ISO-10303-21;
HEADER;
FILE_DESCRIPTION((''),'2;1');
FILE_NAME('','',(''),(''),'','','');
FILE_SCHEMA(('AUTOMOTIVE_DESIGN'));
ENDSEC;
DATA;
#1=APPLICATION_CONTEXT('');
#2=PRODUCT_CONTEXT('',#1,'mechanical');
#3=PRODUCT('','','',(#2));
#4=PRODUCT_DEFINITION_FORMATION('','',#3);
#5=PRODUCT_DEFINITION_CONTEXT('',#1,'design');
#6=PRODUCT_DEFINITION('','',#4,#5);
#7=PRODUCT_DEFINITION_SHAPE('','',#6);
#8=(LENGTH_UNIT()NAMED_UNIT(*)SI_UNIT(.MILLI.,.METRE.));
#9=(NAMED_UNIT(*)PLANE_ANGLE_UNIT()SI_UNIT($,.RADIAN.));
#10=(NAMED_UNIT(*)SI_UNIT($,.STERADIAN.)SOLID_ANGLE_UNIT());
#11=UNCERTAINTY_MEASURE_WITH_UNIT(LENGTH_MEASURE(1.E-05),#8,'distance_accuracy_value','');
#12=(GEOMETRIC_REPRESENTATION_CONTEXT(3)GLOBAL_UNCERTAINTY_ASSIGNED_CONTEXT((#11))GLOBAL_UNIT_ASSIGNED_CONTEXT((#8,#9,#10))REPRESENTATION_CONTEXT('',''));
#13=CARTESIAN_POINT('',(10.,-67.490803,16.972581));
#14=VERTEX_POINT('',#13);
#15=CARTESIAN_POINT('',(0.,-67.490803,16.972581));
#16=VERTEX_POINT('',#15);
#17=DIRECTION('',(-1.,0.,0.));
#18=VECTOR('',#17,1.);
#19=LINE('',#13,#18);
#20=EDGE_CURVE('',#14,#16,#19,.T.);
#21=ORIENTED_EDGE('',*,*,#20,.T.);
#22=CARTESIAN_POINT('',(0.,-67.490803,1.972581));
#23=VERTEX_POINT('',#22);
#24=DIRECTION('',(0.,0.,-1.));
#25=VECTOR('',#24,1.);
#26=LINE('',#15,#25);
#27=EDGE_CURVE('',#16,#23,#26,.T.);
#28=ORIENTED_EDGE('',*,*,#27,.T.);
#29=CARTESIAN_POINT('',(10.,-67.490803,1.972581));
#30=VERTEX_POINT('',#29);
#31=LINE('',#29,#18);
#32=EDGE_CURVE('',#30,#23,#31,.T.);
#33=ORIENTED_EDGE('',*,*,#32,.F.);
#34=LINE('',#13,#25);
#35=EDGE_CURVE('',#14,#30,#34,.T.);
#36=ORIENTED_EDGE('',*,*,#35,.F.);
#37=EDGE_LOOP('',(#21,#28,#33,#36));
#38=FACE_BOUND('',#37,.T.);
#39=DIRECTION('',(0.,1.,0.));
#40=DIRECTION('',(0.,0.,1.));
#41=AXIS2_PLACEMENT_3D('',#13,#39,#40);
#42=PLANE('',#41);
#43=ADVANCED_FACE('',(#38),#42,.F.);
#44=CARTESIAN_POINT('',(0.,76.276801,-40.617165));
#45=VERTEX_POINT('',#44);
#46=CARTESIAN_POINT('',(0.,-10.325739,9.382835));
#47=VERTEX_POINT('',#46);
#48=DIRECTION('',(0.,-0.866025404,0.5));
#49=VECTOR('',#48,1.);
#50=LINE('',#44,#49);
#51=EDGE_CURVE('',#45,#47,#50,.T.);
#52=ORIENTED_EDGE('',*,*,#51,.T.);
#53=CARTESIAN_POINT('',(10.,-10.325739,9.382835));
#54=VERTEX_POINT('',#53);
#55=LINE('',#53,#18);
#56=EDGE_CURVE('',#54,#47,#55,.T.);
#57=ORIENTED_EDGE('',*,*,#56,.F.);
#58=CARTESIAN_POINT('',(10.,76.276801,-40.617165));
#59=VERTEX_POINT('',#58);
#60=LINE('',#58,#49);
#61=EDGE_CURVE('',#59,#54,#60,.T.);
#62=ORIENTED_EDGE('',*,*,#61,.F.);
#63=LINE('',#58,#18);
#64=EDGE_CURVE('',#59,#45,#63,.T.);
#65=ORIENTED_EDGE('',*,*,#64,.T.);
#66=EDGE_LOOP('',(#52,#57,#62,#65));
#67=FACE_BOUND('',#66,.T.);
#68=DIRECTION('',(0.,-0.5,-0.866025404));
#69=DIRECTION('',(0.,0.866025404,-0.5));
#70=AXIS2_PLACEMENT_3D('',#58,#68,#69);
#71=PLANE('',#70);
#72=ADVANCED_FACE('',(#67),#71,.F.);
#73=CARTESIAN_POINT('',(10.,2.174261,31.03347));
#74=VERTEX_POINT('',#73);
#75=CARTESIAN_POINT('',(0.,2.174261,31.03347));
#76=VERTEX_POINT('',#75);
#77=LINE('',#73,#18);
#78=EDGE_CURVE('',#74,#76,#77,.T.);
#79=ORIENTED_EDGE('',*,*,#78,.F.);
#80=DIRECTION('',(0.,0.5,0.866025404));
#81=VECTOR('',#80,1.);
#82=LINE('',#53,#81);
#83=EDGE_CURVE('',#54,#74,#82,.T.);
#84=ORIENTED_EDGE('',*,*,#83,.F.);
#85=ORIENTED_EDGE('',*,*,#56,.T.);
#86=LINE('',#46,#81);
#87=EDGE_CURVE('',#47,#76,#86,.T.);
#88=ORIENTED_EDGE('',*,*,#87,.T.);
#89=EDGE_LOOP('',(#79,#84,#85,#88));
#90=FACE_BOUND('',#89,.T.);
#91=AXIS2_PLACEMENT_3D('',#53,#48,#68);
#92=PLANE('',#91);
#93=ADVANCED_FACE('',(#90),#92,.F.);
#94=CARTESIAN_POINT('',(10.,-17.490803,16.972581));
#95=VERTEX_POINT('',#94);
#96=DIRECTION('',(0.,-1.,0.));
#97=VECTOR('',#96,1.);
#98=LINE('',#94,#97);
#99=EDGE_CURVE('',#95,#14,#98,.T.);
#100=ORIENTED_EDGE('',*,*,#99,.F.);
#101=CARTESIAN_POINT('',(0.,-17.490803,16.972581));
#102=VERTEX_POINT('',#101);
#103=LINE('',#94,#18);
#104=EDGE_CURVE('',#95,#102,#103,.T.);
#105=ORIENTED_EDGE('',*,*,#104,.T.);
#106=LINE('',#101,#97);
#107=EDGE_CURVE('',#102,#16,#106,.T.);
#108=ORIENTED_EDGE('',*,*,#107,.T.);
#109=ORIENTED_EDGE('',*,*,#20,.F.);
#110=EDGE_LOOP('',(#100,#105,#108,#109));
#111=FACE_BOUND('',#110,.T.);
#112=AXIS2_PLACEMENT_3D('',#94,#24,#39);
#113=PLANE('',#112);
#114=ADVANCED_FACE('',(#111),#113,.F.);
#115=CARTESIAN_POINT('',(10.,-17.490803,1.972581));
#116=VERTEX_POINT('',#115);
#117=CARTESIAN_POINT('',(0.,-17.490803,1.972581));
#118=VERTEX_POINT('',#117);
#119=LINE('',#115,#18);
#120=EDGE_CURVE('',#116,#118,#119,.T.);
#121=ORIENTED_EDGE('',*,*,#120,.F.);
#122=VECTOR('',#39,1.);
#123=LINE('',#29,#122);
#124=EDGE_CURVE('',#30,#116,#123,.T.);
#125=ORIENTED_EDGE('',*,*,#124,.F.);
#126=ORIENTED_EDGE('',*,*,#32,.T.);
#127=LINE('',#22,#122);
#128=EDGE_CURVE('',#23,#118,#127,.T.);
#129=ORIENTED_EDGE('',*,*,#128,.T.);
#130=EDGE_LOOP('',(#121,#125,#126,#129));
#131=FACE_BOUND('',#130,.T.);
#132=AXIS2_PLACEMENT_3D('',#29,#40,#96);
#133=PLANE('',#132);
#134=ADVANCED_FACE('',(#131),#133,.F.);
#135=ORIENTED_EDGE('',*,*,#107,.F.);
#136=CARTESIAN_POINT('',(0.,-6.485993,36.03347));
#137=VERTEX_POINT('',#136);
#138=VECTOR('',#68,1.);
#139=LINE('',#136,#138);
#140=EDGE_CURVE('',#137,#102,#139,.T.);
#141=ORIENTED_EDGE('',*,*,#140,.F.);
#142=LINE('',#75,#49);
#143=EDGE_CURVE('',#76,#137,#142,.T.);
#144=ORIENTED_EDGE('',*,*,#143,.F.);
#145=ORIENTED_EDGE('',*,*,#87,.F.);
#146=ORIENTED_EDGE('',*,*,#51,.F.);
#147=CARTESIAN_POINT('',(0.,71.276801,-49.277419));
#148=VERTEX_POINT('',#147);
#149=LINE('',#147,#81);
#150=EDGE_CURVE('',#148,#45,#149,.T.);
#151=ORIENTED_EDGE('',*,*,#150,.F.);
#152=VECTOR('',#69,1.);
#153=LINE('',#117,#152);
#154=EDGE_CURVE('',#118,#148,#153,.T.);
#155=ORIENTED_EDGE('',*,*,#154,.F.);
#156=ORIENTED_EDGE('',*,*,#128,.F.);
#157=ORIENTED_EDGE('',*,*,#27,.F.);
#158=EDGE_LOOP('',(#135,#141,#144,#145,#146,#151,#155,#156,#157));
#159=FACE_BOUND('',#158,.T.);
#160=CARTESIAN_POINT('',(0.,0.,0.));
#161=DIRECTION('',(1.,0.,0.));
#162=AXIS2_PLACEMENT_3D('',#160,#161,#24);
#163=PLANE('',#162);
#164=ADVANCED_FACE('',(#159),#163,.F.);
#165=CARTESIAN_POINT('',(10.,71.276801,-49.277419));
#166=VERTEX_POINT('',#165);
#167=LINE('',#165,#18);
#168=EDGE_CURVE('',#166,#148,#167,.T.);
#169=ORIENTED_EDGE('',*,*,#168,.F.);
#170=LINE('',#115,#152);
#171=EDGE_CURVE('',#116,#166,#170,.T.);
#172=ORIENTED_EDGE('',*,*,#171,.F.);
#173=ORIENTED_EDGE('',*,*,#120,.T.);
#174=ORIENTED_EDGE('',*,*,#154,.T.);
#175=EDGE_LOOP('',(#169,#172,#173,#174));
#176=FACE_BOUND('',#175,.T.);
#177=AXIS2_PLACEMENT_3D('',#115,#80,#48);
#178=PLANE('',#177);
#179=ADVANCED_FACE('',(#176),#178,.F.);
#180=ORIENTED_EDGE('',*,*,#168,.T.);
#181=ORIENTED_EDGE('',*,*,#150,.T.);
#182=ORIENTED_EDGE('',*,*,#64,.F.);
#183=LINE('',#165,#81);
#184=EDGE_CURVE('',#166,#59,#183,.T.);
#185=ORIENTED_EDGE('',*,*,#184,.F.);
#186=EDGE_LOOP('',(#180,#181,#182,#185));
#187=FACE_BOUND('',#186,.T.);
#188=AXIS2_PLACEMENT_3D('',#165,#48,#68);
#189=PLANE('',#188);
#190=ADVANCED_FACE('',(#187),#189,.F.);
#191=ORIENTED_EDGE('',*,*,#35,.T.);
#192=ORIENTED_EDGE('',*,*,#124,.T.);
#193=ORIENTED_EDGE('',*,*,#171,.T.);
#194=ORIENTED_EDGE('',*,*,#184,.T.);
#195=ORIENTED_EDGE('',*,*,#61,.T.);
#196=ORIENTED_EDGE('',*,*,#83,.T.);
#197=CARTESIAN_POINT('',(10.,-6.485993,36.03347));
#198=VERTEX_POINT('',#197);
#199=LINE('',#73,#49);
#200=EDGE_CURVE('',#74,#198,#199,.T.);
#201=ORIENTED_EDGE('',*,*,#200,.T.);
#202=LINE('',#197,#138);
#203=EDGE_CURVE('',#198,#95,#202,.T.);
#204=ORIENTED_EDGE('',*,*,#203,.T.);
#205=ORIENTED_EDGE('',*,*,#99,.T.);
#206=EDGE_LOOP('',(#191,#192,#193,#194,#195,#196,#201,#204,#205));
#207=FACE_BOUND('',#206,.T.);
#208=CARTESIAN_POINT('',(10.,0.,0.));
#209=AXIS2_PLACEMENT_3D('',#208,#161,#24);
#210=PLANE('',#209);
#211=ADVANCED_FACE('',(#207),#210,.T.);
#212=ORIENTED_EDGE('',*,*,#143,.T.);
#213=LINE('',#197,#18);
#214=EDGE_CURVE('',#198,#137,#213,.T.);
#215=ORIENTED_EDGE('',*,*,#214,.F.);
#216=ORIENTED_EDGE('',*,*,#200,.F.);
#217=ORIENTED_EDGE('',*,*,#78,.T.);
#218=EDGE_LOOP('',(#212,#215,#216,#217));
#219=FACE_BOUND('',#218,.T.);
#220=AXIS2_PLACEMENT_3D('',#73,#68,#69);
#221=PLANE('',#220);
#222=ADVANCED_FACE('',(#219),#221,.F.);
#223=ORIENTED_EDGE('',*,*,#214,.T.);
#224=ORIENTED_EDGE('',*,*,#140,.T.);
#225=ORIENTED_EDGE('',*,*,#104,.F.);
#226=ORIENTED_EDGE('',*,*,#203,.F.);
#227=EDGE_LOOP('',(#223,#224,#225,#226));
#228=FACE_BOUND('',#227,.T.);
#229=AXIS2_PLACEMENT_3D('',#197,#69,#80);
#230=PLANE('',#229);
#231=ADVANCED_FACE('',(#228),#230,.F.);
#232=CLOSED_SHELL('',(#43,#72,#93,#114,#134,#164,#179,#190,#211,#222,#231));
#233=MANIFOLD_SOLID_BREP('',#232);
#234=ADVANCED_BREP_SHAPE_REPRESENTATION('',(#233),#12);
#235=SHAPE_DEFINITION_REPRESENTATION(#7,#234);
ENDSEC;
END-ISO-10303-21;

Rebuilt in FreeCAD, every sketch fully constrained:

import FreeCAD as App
import Part
import Sketcher
from FreeCAD import Vector
Q = App.Units.Quantity


def add_polygon(sketch, points):
    """Adds a closed chain of lines whose ends are joined by coincident constraints."""
    first, n = sketch.GeometryCount, len(points)
    for a, b in zip(points, points[1:] + points[:1]):
        sketch.addGeometry(Part.LineSegment(App.Vector(*a, 0), App.Vector(*b, 0)), False)
    for i in range(n):
        sketch.addConstraint(Sketcher.Constraint("Coincident", first + i, 2, first + (i + 1) % n, 1))

doc = App.newDocument("Part")
body = doc.addObject("PartDesign::Body", "Body")

# Sketch on YZ plane
sketch1 = body.newObject("Sketcher::SketchObject", "Sketch")
sketch1.AttachmentSupport = (doc.getObject("YZ_Plane"), [""])
sketch1.MapMode = "FlatFace"
add_polygon(sketch1, [(76, -41), (-10, 9), (2, 31), (-6, 36), (-17, 17), (-67, 17), (-67, 2), (-17, 2), (71, -49)])  # lines 0-8
sketch1.addConstraint([
    Sketcher.Constraint("Horizontal", 4),
    Sketcher.Constraint("Vertical", 5),
    Sketcher.Constraint("Horizontal", 6),
    Sketcher.Constraint("Perpendicular", 0, 1),
    Sketcher.Constraint("Perpendicular", 1, 2),
    Sketcher.Constraint("Perpendicular", 2, 3),
    Sketcher.Constraint("Perpendicular", 3, 7),
    Sketcher.Constraint("Perpendicular", 7, 8),
    Sketcher.Constraint("Vertical", 3, 2, 6, 2),
    Sketcher.Constraint("Equal", 2, 8),
    Sketcher.Constraint("DistanceX", 4, 2, 4, 1, Q("50 mm")),
    Sketcher.Constraint("DistanceY", 5, 2, 5, 1, Q("15 mm")),
    Sketcher.Constraint("Angle", 0, Q("150 deg")),
    Sketcher.Constraint("Distance", 0, Q("100 mm")),
    Sketcher.Constraint("Distance", 1, Q("25 mm")),
    Sketcher.Constraint("Distance", 2, Q("10 mm")),
    Sketcher.Constraint("DistanceX", -1, 1, 7, 2, Q("71.276801 mm")),
    Sketcher.Constraint("DistanceY", -1, 1, 1, 2, Q("31.03347 mm")),
])
pad1 = body.newObject("PartDesign::Pad", "Pad")
pad1.Profile = sketch1
pad1.Length = 10

doc.recompute()
